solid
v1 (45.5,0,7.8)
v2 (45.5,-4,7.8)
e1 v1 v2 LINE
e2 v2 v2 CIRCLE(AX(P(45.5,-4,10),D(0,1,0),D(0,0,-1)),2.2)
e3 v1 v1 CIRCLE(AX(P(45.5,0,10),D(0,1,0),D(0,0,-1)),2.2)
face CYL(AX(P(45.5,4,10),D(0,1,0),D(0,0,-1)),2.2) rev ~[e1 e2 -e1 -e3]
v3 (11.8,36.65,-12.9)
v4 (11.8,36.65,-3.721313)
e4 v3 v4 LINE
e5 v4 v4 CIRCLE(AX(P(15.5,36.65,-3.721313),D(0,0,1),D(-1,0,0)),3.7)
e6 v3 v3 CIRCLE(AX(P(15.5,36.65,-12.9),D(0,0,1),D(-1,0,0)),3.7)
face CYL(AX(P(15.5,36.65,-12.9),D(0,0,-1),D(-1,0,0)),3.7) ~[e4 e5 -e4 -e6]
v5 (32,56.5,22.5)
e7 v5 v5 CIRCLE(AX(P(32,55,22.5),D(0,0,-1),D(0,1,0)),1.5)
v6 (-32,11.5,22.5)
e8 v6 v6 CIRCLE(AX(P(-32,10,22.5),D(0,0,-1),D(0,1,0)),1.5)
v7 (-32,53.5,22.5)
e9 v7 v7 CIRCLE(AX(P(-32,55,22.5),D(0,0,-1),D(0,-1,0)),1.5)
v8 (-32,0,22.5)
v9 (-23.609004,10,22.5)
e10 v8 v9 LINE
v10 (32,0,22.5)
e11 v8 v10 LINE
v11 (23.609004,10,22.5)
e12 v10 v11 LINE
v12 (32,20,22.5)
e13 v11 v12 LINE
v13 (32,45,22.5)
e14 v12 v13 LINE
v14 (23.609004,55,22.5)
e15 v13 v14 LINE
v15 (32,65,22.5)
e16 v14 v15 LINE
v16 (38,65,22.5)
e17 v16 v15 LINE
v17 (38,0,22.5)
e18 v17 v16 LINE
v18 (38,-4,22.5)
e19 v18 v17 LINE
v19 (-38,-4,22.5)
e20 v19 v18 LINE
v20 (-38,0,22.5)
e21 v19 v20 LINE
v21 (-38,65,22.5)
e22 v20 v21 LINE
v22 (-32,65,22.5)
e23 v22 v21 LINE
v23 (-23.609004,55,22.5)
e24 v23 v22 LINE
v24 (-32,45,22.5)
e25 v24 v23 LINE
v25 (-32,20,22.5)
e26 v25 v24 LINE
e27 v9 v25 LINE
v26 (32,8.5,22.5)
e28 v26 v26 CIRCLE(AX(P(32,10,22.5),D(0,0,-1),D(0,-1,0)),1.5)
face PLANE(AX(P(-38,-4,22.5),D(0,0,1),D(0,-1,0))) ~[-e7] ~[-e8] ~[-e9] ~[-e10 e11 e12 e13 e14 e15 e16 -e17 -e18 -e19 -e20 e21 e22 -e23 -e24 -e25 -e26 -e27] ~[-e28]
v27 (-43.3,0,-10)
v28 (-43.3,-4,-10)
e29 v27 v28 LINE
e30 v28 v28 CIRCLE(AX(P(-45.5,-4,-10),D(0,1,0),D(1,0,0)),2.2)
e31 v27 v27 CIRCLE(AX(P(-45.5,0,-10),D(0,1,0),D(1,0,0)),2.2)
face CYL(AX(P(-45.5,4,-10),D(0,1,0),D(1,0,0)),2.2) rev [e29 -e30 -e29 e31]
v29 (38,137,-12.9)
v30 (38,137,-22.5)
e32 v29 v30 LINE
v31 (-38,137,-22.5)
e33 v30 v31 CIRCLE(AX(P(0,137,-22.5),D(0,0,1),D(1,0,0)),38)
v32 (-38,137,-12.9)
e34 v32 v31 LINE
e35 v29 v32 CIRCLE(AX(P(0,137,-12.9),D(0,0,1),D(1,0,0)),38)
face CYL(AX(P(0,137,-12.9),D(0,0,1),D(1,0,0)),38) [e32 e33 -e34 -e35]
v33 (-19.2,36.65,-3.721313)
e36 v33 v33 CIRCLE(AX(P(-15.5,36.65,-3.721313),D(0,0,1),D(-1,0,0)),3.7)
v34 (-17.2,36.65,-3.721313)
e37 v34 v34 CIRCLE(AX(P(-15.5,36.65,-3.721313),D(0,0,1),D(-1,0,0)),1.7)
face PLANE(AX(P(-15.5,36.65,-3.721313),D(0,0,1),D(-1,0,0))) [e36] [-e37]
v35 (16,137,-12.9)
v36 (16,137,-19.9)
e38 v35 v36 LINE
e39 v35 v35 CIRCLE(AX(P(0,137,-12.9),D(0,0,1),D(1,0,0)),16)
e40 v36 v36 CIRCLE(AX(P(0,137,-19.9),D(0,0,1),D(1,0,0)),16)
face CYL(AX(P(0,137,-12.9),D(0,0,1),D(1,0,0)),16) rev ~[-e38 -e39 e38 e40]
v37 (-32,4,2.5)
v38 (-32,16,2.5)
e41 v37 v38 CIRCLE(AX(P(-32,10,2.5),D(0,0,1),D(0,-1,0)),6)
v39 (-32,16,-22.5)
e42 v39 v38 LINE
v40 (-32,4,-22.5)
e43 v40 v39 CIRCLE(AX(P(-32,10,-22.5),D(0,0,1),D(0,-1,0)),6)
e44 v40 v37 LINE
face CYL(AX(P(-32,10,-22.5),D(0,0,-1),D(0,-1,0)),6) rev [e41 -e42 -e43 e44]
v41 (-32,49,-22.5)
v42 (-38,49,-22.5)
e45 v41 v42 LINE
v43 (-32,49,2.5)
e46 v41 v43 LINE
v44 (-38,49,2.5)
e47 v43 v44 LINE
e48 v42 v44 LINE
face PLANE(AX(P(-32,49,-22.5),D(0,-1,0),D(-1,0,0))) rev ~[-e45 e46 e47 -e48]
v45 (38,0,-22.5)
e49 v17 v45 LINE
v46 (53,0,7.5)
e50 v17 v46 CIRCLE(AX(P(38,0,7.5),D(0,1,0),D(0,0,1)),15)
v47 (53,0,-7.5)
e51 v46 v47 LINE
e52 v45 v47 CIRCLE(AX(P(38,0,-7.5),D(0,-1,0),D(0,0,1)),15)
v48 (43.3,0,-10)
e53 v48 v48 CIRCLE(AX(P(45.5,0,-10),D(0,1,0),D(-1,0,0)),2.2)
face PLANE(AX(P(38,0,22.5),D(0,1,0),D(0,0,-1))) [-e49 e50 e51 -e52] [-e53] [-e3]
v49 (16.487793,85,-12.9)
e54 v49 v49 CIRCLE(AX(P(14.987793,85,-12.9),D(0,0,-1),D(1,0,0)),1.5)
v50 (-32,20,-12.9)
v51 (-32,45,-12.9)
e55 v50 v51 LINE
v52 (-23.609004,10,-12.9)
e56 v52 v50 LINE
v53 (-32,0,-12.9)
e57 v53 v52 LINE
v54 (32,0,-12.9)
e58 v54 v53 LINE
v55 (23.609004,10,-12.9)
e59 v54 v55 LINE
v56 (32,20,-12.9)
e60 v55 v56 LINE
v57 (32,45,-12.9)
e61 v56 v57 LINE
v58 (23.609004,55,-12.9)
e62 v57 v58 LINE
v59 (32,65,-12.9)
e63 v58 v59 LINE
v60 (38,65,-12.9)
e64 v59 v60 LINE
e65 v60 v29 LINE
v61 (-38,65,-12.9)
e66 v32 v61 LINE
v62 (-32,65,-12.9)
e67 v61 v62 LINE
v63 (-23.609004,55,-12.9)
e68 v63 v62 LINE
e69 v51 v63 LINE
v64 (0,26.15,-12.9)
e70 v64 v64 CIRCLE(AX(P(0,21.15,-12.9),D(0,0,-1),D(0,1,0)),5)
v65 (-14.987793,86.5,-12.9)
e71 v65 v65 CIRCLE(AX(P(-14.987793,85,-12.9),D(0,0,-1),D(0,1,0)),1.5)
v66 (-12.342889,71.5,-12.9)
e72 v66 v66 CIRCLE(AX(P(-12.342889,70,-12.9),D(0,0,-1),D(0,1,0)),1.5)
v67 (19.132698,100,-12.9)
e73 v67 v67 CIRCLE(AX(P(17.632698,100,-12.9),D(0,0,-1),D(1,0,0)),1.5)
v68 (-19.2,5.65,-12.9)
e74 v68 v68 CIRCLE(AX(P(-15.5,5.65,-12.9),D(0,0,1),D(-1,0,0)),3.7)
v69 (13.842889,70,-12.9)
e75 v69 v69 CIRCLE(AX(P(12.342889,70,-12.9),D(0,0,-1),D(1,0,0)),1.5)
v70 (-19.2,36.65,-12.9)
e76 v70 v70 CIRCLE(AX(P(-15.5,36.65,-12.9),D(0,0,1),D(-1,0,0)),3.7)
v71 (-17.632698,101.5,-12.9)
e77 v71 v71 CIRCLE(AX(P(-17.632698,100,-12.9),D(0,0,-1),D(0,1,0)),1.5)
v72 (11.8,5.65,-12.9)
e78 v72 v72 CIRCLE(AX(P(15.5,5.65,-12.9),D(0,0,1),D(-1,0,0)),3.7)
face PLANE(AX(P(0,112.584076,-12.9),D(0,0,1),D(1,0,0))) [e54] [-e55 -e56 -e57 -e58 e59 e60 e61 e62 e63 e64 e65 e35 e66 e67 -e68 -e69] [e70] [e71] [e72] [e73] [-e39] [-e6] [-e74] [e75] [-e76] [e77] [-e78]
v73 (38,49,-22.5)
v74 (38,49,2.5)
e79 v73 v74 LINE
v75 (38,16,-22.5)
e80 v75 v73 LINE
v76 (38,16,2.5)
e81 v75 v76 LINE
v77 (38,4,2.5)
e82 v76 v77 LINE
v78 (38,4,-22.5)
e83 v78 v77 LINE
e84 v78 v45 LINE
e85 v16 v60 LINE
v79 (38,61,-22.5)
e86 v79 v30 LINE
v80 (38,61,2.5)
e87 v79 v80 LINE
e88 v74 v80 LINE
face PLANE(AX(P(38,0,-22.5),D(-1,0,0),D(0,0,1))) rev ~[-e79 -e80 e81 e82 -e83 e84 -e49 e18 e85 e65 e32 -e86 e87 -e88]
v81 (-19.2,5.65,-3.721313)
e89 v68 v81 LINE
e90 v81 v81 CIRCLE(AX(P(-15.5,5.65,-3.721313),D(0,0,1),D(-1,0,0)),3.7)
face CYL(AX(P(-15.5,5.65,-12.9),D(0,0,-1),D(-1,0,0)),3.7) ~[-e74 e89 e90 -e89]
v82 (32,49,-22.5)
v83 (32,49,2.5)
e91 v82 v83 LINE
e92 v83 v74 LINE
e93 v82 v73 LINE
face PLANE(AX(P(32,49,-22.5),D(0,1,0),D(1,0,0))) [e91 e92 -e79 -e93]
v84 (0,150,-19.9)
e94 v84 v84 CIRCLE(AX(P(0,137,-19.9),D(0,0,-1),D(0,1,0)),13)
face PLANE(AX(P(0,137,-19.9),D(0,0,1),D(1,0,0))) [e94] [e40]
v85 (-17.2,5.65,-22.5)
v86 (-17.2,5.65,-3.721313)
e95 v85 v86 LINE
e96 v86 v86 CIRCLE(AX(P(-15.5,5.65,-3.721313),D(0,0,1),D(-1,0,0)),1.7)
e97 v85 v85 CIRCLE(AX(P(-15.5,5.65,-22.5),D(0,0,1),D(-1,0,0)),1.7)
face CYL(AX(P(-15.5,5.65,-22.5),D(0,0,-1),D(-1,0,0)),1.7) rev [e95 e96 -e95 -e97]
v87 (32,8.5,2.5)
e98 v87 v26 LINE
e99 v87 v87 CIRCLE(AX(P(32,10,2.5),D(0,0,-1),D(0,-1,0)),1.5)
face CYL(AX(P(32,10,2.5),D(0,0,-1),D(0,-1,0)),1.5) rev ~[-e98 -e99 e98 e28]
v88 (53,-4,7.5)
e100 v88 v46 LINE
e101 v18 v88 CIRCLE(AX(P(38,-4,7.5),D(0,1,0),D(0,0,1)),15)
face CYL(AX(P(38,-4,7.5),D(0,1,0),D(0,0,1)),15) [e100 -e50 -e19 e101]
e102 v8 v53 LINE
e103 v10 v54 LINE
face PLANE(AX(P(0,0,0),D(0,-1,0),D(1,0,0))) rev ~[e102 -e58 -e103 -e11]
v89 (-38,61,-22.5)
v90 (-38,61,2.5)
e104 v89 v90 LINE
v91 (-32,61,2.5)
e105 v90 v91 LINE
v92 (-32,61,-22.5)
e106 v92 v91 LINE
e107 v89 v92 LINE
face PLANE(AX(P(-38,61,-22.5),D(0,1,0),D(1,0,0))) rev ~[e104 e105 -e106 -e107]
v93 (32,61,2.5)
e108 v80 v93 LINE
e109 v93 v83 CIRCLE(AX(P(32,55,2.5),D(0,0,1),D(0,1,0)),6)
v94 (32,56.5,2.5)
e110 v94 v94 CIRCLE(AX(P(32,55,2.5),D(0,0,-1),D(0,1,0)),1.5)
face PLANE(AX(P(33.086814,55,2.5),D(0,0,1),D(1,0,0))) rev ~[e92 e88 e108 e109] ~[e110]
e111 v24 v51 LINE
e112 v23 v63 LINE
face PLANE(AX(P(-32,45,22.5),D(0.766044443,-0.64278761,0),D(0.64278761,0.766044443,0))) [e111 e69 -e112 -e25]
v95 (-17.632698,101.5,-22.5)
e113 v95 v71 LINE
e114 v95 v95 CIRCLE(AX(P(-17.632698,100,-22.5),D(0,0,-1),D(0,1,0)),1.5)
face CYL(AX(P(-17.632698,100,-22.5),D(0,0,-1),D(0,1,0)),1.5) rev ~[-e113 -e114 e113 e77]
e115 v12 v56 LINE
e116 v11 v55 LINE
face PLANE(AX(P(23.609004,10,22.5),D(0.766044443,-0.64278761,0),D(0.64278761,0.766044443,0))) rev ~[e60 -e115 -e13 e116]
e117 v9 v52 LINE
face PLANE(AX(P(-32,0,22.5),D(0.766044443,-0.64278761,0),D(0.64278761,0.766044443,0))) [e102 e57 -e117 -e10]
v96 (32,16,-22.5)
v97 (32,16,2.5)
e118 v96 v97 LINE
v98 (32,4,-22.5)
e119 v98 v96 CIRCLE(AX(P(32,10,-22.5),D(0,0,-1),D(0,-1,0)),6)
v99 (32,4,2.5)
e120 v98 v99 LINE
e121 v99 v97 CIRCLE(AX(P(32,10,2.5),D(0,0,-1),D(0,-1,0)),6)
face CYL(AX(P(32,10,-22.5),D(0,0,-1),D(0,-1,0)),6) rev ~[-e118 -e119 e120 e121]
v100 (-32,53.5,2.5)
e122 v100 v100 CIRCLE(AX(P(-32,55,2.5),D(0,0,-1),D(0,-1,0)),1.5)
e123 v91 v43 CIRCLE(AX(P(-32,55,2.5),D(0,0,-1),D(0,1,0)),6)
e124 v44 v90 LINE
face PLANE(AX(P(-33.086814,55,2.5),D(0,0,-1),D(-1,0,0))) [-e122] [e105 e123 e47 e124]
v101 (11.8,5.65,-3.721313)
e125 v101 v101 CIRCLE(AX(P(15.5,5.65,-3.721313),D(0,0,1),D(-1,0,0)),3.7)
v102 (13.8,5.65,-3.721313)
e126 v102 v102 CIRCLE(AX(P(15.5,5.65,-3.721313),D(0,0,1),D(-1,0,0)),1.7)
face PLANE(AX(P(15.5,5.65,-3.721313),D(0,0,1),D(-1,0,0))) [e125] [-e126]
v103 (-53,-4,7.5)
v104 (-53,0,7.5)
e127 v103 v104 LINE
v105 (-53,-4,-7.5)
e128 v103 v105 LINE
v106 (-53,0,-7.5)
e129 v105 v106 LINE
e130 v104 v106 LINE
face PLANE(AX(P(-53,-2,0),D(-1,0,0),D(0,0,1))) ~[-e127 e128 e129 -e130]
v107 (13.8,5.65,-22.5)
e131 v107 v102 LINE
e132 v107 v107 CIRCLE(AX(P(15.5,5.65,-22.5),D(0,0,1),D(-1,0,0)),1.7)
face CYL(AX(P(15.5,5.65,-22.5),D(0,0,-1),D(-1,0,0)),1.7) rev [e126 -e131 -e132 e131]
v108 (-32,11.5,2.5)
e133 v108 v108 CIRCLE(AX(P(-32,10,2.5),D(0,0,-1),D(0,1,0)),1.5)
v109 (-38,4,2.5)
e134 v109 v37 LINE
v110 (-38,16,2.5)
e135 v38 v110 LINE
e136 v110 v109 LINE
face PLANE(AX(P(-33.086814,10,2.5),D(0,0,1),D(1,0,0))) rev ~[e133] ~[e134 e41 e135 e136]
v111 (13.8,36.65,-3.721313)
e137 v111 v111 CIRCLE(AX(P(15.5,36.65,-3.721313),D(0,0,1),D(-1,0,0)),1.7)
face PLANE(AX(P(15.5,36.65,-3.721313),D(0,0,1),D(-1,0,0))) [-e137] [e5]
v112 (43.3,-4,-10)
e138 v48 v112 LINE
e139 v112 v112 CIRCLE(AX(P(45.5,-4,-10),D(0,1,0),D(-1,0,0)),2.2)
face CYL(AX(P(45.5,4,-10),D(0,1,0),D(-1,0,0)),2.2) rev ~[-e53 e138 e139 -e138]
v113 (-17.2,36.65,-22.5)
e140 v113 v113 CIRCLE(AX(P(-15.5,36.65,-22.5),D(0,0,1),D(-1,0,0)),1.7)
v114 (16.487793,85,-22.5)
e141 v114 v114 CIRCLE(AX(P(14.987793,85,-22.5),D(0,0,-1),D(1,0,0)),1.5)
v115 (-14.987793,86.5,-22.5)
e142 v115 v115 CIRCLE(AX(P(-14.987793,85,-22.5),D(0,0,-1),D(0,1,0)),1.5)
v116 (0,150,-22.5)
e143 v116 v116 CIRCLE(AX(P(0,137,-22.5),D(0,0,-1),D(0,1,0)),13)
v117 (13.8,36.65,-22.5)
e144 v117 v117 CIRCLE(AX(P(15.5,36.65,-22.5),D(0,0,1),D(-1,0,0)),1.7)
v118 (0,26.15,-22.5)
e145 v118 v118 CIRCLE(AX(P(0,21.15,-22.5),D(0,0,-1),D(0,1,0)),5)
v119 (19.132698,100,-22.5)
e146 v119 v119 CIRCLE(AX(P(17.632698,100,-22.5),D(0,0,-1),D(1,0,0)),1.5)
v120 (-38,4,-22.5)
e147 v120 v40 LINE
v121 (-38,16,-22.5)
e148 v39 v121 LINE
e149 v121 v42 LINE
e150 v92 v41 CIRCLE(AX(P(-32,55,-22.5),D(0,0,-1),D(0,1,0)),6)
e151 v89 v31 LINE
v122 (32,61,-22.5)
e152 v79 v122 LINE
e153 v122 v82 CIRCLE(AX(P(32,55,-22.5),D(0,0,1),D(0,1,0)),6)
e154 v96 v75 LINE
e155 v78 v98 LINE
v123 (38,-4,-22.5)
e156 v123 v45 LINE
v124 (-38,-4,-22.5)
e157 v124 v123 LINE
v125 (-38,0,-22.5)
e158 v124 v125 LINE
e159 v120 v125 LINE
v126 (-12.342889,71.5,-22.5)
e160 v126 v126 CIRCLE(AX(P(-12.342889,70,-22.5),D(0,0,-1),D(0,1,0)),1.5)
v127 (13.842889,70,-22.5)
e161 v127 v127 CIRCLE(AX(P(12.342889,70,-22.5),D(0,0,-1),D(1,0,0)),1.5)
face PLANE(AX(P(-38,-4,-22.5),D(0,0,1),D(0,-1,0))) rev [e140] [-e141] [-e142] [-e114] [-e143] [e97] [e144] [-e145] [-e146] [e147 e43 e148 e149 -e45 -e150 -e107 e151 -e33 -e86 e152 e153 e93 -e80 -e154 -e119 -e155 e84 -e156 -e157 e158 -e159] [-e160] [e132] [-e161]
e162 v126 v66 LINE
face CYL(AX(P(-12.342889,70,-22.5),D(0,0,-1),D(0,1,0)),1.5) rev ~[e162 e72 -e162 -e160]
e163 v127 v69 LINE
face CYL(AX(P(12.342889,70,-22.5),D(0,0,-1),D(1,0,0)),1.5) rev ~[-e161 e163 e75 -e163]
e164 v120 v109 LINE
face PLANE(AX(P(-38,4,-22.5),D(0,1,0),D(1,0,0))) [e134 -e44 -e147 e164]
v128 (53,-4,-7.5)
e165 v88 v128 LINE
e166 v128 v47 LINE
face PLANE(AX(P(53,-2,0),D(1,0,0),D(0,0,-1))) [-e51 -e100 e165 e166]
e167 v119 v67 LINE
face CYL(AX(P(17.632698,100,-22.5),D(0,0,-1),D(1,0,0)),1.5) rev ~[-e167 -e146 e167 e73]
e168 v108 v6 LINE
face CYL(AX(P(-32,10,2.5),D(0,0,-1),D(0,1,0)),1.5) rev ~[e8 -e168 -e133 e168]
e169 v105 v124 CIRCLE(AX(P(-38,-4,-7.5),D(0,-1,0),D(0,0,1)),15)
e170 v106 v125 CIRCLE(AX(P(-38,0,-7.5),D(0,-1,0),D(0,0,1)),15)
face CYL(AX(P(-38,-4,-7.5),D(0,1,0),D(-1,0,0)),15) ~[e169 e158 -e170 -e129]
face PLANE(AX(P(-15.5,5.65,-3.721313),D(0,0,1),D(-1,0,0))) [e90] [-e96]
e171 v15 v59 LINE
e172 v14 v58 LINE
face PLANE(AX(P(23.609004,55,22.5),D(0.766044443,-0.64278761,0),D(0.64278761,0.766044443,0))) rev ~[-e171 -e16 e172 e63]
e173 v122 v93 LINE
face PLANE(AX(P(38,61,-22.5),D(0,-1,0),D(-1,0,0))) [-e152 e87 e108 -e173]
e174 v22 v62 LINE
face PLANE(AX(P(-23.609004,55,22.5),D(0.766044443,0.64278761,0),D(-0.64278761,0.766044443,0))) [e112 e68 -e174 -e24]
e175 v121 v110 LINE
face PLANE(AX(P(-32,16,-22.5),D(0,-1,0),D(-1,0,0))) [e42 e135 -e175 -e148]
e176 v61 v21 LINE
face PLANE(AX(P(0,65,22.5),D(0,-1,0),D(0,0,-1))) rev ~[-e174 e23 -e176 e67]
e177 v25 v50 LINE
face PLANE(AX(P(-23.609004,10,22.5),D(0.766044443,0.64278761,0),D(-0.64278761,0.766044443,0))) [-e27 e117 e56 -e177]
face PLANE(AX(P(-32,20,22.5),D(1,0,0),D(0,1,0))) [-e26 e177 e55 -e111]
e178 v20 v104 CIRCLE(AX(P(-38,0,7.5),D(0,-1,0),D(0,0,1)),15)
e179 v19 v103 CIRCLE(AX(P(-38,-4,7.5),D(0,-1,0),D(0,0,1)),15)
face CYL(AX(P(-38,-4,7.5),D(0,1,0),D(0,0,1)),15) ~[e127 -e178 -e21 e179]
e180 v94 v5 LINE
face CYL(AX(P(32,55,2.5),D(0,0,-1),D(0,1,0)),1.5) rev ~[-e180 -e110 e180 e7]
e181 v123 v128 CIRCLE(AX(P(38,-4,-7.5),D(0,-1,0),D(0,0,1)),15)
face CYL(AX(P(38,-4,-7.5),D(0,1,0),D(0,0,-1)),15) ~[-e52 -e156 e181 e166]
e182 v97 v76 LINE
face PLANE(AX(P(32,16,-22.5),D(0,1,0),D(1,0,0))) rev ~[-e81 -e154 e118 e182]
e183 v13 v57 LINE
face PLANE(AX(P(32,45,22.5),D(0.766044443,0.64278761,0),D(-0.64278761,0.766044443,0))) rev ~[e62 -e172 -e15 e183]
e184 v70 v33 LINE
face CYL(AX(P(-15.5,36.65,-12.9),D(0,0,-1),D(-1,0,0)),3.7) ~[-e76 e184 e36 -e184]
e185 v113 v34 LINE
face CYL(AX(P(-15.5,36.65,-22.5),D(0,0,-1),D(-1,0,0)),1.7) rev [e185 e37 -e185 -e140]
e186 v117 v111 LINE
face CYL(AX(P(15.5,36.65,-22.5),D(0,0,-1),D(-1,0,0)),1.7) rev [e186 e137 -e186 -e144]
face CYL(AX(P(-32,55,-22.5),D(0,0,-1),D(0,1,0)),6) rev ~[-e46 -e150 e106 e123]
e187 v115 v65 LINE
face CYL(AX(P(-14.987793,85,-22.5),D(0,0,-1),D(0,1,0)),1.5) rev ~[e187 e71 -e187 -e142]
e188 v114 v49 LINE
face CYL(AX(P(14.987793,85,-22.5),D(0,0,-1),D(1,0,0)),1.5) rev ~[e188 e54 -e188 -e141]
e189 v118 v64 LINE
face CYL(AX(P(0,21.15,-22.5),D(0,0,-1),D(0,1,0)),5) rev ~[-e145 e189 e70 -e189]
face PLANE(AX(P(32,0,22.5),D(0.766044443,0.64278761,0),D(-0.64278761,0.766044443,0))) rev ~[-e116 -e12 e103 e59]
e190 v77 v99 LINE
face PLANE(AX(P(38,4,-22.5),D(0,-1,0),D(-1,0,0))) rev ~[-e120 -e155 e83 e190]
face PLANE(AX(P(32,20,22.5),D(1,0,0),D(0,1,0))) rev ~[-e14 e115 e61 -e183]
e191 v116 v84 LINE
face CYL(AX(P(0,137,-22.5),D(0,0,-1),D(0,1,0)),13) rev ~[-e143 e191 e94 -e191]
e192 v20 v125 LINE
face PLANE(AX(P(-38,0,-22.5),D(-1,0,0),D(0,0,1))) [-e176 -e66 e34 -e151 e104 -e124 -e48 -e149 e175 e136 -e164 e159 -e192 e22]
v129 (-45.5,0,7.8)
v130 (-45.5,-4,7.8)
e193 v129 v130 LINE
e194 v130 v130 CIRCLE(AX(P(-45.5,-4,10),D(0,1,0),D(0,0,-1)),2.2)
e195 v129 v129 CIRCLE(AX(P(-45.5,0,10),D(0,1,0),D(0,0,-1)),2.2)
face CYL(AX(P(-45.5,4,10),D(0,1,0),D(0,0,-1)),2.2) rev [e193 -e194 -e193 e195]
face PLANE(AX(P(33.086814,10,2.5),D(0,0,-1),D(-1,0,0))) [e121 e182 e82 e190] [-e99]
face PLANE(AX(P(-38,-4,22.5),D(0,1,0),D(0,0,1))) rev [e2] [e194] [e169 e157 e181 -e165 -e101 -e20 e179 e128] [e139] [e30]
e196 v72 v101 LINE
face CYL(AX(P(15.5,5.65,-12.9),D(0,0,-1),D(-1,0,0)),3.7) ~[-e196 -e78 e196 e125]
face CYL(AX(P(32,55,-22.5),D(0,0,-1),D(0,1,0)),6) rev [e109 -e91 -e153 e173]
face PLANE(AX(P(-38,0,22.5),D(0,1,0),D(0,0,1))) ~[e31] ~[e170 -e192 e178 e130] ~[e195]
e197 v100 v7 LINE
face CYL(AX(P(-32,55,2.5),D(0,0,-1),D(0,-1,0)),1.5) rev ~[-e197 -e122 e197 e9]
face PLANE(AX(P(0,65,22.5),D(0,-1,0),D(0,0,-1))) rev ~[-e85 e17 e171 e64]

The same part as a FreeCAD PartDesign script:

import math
import FreeCAD as App
import Part
import Sketcher
from FreeCAD import Vector
Q = App.Units.Quantity


def edges_at(feature, points):
    """Names of the edges that pass closest to the given points."""
    edges = feature.Shape.Edges
    near = lambda p: min(range(len(edges)), key=lambda i: edges[i].distToShape(Part.Vertex(*p))[0])
    return sorted({f"Edge{near(p) + 1}" for p in points})


def add_polygon(sketch, points):
    """Adds a closed chain of lines whose ends are joined by coincident constraints."""
    first, n = sketch.GeometryCount, len(points)
    for a, b in zip(points, points[1:] + points[:1]):
        sketch.addGeometry(Part.LineSegment(App.Vector(*a, 0), App.Vector(*b, 0)), False)
    for i in range(n):
        sketch.addConstraint(Sketcher.Constraint("Coincident", first + i, 2, first + (i + 1) % n, 1))

doc = App.newDocument("Part")
params = doc.addObject("Spreadsheet::Sheet", "Params")
for row, (alias, value) in enumerate([
    ("sketch1_width", "65 mm"),
    ("sketch1_height", "45 mm"),
    ("pad1_length", "76 mm"),
    ("sketch2_width", "6 mm"),
    ("sketch2_height", "65 mm"),
    ("sketch2_height2", "25 mm"),
    ("pocket1_length", "35.4 mm"),
    ("sketch3_radius", "6 mm"),
    ("sketch3_width", "6 mm"),
    ("pocket2_length", "25 mm"),
    ("sketch4_diameter", "3 mm"),
    ("sketch5_radius", "38 mm"),
    ("sketch5_height", "72 mm"),
    ("pad2_length", "9.6 mm"),
    ("sketch6_diameter", "32 mm"),
    ("pocket4_length", "7 mm"),
    ("sketch7_diameter", "26 mm"),
    ("sketch8_diameter", "3 mm"),
    ("sketch9_width", "76 mm"),
    ("sketch9_height", "45 mm"),
    ("pad3_length", "4 mm"),
    ("sketch10_width", "4 mm"),
    ("sketch10_height", "45 mm"),
    ("pad4_length", "15 mm"),
    ("fillet_radius", "15 mm"),
    ("sketch11_diameter", "4.4 mm"),
    ("fillet2_radius", "15 mm"),
    ("sketch12_diameter", "7.4 mm"),
    ("sketch12_diameter2", "3.4 mm"),
    ("pad5_length", "9.178687 mm"),
    ("sketch13_diameter", "3.4 mm"),
    ("pocket8_length", "9.6 mm"),
    ("sketch14_diameter", "10 mm"),
    ("pocket9_length", "9.6 mm"),
], start=1):
    params.set(f"A{row}", alias)
    params.set(f"B{row}", "=" + value)
    params.setAlias(f"B{row}", alias)

body = doc.addObject("PartDesign::Body", "Body")

sketch1 = doc.addObject("Sketcher::SketchObject", "Sketch")
body.addObject(sketch1)
sketch1.AttachmentSupport = (doc.YZ_Plane, [""])
sketch1.MapMode = "FlatFace"
add_polygon(sketch1, [(65, 22), (0, 22), (0, -22), (65, -22)])
sketch1.addConstraint(Sketcher.Constraint("Horizontal", 0))
sketch1.addConstraint(Sketcher.Constraint("Vertical", 1))
sketch1.addConstraint(Sketcher.Constraint("Horizontal", 2))
sketch1.addConstraint(Sketcher.Constraint("Vertical", 3))
sketch1.addConstraint(Sketcher.Constraint("Symmetric", 0, 2, 1, 2, -1, 1))
sketch1.addConstraint(Sketcher.Constraint("DistanceX", 0, 2, 0, 1, Q("65 mm")))
sketch1.addConstraint(Sketcher.Constraint("DistanceY", 1, 2, 1, 1, Q("45 mm")))
sketch1.setExpression("Constraints[9]", "Params.sketch1_width")
sketch1.setExpression("Constraints[10]", "Params.sketch1_height")
pad1 = doc.addObject("PartDesign::Pad", "Pad")
body.addObject(pad1)
pad1.Profile = sketch1
pad1.setExpression("Length", "Params.pad1_length")
pad1.Midplane = True

sketch2 = doc.addObject("Sketcher::SketchObject", "Sketch001")
body.addObject(sketch2)
sketch2.AttachmentSupport = (doc.XY_Plane, [""])
sketch2.MapMode = "FlatFace"
sketch2.AttachmentOffset = App.Placement(Vector(0, 0, 22.5), App.Rotation())
add_polygon(sketch2, [(-50, 77), (-50, -12), (50, -12), (50, 77)])
add_polygon(sketch2, [(-32, 0), (-38, 0), (-38, 65), (-32, 65), (-24, 55), (-32, 45), (-32, 20), (-24, 10)])
add_polygon(sketch2, [(32, 65), (38, 65), (38, 0), (32, 0), (24, 10), (32, 20), (32, 45), (24, 55)])
sketch2.addConstraint(Sketcher.Constraint("Vertical", 0))
sketch2.addConstraint(Sketcher.Constraint("Horizontal", 1))
sketch2.addConstraint(Sketcher.Constraint("Vertical", 2))
sketch2.addConstraint(Sketcher.Constraint("Horizontal", 3))
sketch2.addConstraint(Sketcher.Constraint("Horizontal", 4))
sketch2.addConstraint(Sketcher.Constraint("Vertical", 5))
sketch2.addConstraint(Sketcher.Constraint("Horizontal", 6))
sketch2.addConstraint(Sketcher.Constraint("Vertical", 9))
sketch2.addConstraint(Sketcher.Constraint("Horizontal", 12))
sketch2.addConstraint(Sketcher.Constraint("Vertical", 13))
sketch2.addConstraint(Sketcher.Constraint("Horizontal", 14))
sketch2.addConstraint(Sketcher.Constraint("Vertical", 17))
sketch2.addConstraint(Sketcher.Constraint("Symmetric", 4, 2, 13, 2, -1, 1))
sketch2.addConstraint(Sketcher.Constraint("Symmetric", 11, 2, 14, 2, -2))
sketch2.addConstraint(Sketcher.Constraint("Symmetric", 10, 2, 15, 2, -2))
sketch2.addConstraint(Sketcher.Constraint("Symmetric", 9, 2, 16, 2, -2))
sketch2.addConstraint(Sketcher.Constraint("Symmetric", 7, 2, 18, 2, -2))
sketch2.addConstraint(Sketcher.Constraint("Symmetric", 6, 2, 19, 2, -2))
sketch2.addConstraint(Sketcher.Constraint("Parallel", 7, 10))
sketch2.addConstraint(Sketcher.Constraint("Parallel", 8, 11))
sketch2.addConstraint(Sketcher.Constraint("Parallel", 10, 15))
sketch2.addConstraint(Sketcher.Constraint("Parallel", 15, 18))
sketch2.addConstraint(Sketcher.Constraint("Vertical", 6, 2, 8, 2))
sketch2.addConstraint(Sketcher.Constraint("Vertical", 7, 2, 10, 2))
sketch2.addConstraint(Sketcher.Constraint("Vertical", 9, 2, 11, 2))
sketch2.addConstraint(Sketcher.Constraint("DistanceX", 4, 2, 4, 1, Q("6 mm")))
sketch2.addConstraint(Sketcher.Constraint("DistanceY", 5, 1, 5, 2, Q("65 mm")))
sketch2.addConstraint(Sketcher.Constraint("DistanceY", 9, 2, 9, 1, Q("25 mm")))
sketch2.addConstraint(Sketcher.Constraint("Angle", 7, Q("-50 deg")))
sketch2.addConstraint(Sketcher.Constraint("DistanceX", 4, 2, -1, 1, Q("38 mm")))
sketch2.addConstraint(Sketcher.Constraint("DistanceX", 1, 1, 1, 2, Q("99.932 mm")))
sketch2.addConstraint(Sketcher.Constraint("DistanceY", 0, 2, 0, 1, Q("88.932 mm")))
sketch2.addConstraint(Sketcher.Constraint("DistanceX", 0, 2, -1, 1, Q("49.966 mm")))
sketch2.addConstraint(Sketcher.Constraint("DistanceY", 0, 2, -1, 1, Q("11.966 mm")))
sketch2.setExpression("Constraints[45]", "Params.sketch2_width")
sketch2.setExpression("Constraints[46]", "Params.sketch2_height")
sketch2.setExpression("Constraints[47]", "Params.sketch2_height2")
pocket1 = doc.addObject("PartDesign::Pocket", "Pocket")
body.addObject(pocket1)
pocket1.Profile = sketch2
pocket1.setExpression("Length", "Params.pocket1_length")

sketch3 = doc.addObject("Sketcher::SketchObject", "Sketch002")
body.addObject(sketch3)
sketch3.AttachmentSupport = (doc.XY_Plane, [""])
sketch3.MapMode = "FlatFace"
sketch3.AttachmentOffset = App.Placement(Vector(0, 0, -22.5), App.Rotation())
sketch3.addGeometry(Part.LineSegment(Vector(32, 16, 0), Vector(38, 16, 0)), False)
sketch3.addGeometry(Part.LineSegment(Vector(38, 16, 0), Vector(38, 4, 0)), False)
sketch3.addGeometry(Part.LineSegment(Vector(38, 4, 0), Vector(32, 4, 0)), False)
sketch3.addGeometry(Part.ArcOfCircle(Part.Circle(Vector(32, 10, 0), Vector(0, 0, 1), 6), math.radians(90), math.radians(270)), False)
sketch3.addGeometry(Part.LineSegment(Vector(-38, 4, 0), Vector(-38, 16, 0)), False)
sketch3.addGeometry(Part.LineSegment(Vector(-38, 16, 0), Vector(-32, 16, 0)), False)
sketch3.addGeometry(Part.ArcOfCircle(Part.Circle(Vector(-32, 10, 0), Vector(0, 0, 1), 6), math.radians(-90), math.radians(90)), False)
sketch3.addGeometry(Part.LineSegment(Vector(-32, 4, 0), Vector(-38, 4, 0)), False)
sketch3.addGeometry(Part.LineSegment(Vector(-32, 49, 0), Vector(-38, 49, 0)), False)
sketch3.addGeometry(Part.LineSegment(Vector(-38, 49, 0), Vector(-38, 61, 0)), False)
sketch3.addGeometry(Part.LineSegment(Vector(-38, 61, 0), Vector(-32, 61, 0)), False)
sketch3.addGeometry(Part.ArcOfCircle(Part.Circle(Vector(-32, 55, 0), Vector(0, 0, 1), 6), math.radians(-90), math.radians(90)), False)
sketch3.addGeometry(Part.LineSegment(Vector(38, 61, 0), Vector(38, 49, 0)), False)
sketch3.addGeometry(Part.LineSegment(Vector(38, 49, 0), Vector(32, 49, 0)), False)
sketch3.addGeometry(Part.ArcOfCircle(Part.Circle(Vector(32, 55, 0), Vector(0, 0, 1), 6), math.radians(90), math.radians(270)), False)
sketch3.addGeometry(Part.LineSegment(Vector(32, 61, 0), Vector(38, 61, 0)), False)
sketch3.addConstraint(Sketcher.Constraint("Coincident", 0, 2, 1, 1))
sketch3.addConstraint(Sketcher.Constraint("Coincident", 1, 2, 2, 1))
sketch3.addConstraint(Sketcher.Constraint("Tangent", 2, 2, 3, 2))
sketch3.addConstraint(Sketcher.Constraint("Tangent", 3, 1, 0, 1))
sketch3.addConstraint(Sketcher.Constraint("Coincident", 4, 2, 5, 1))
sketch3.addConstraint(Sketcher.Constraint("Tangent", 5, 2, 6, 2))
sketch3.addConstraint(Sketcher.Constraint("Tangent", 6, 1, 7, 1))
sketch3.addConstraint(Sketcher.Constraint("Coincident", 7, 2, 4, 1))
sketch3.addConstraint(Sketcher.Constraint("Coincident", 8, 2, 9, 1))
sketch3.addConstraint(Sketcher.Constraint("Coincident", 9, 2, 10, 1))
sketch3.addConstraint(Sketcher.Constraint("Tangent", 10, 2, 11, 2))
sketch3.addConstraint(Sketcher.Constraint("Tangent", 11, 1, 8, 1))
sketch3.addConstraint(Sketcher.Constraint("Coincident", 12, 2, 13, 1))
sketch3.addConstraint(Sketcher.Constraint("Tangent", 13, 2, 14, 2))
sketch3.addConstraint(Sketcher.Constraint("Tangent", 14, 1, 15, 1))
sketch3.addConstraint(Sketcher.Constraint("Coincident", 15, 2, 12, 1))
sketch3.addConstraint(Sketcher.Constraint("Horizontal", 0))
sketch3.addConstraint(Sketcher.Constraint("Vertical", 1))
sketch3.addConstraint(Sketcher.Constraint("Horizontal", 2))
sketch3.addConstraint(Sketcher.Constraint("Vertical", 4))
sketch3.addConstraint(Sketcher.Constraint("Horizontal", 5))
sketch3.addConstraint(Sketcher.Constraint("Horizontal", 7))
sketch3.addConstraint(Sketcher.Constraint("Horizontal", 8))
sketch3.addConstraint(Sketcher.Constraint("Vertical", 9))
sketch3.addConstraint(Sketcher.Constraint("Horizontal", 10))
sketch3.addConstraint(Sketcher.Constraint("Vertical", 12))
sketch3.addConstraint(Sketcher.Constraint("Horizontal", 13))
sketch3.addConstraint(Sketcher.Constraint("Horizontal", 15))
sketch3.addConstraint(Sketcher.Constraint("Equal", 3, 6))
sketch3.addConstraint(Sketcher.Constraint("Equal", 6, 11))
sketch3.addConstraint(Sketcher.Constraint("Equal", 11, 14))
sketch3.addConstraint(Sketcher.Constraint("Symmetric", 3, 3, 6, 3, -2))
sketch3.addConstraint(Sketcher.Constraint("Symmetric", 11, 3, 14, 3, -2))
sketch3.addConstraint(Sketcher.Constraint("Vertical", 6, 3, 11, 3))
sketch3.addConstraint(Sketcher.Constraint("Vertical", 7, 2, 8, 2))
sketch3.addConstraint(Sketcher.Constraint("Vertical", 1, 2, 12, 2))
sketch3.addConstraint(Sketcher.Constraint("Equal", 2, 5))
sketch3.addConstraint(Sketcher.Constraint("Radius", 3, Q("6 mm")))
sketch3.addConstraint(Sketcher.Constraint("DistanceX", 0, 1, 0, 2, Q("6 mm")))
sketch3.addConstraint(Sketcher.Constraint("DistanceX", -1, 1, 3, 3, Q("32 mm")))
sketch3.addConstraint(Sketcher.Constraint("DistanceY", -1, 1, 3, 3, Q("10 mm")))
sketch3.addConstraint(Sketcher.Constraint("DistanceY", -1, 1, 11, 3, Q("55 mm")))
sketch3.setExpression("Constraints[37]", "Params.sketch3_radius")
sketch3.setExpression("Constraints[38]", "Params.sketch3_width")
pocket2 = doc.addObject("PartDesign::Pocket", "Pocket001")
body.addObject(pocket2)
pocket2.Profile = sketch3
pocket2.setExpression("Length", "Params.pocket2_length")
pocket2.Reversed = True

sketch4 = doc.addObject("Sketcher::SketchObject", "Sketch003")
body.addObject(sketch4)
sketch4.AttachmentSupport = (doc.XY_Plane, [""])
sketch4.MapMode = "FlatFace"
sketch4.AttachmentOffset = App.Placement(Vector(0, 0, 2.5), App.Rotation())
sketch4.addGeometry(Part.Circle(Vector(-32, 10, 0), Vector(0, 0, 1), 1.5), False)
sketch4.addGeometry(Part.Circle(Vector(32, 10, 0), Vector(0, 0, 1), 1.5), False)
sketch4.addGeometry(Part.Circle(Vector(32, 55, 0), Vector(0, 0, 1), 1.5), False)
sketch4.addGeometry(Part.Circle(Vector(-32, 55, 0), Vector(0, 0, 1), 1.5), False)
sketch4.addConstraint(Sketcher.Constraint("Equal", 0, 1))
sketch4.addConstraint(Sketcher.Constraint("Equal", 1, 2))
sketch4.addConstraint(Sketcher.Constraint("Equal", 2, 3))
sketch4.addConstraint(Sketcher.Constraint("Symmetric", 0, 3, 1, 3, -2))
sketch4.addConstraint(Sketcher.Constraint("Symmetric", 2, 3, 3, 3, -2))
sketch4.addConstraint(Sketcher.Constraint("Vertical", 1, 3, 2, 3))
sketch4.addConstraint(Sketcher.Constraint("Diameter", 0, Q("3 mm")))
sketch4.addConstraint(Sketcher.Constraint("DistanceX", 0, 3, -1, 1, Q("32 mm")))
sketch4.addConstraint(Sketcher.Constraint("DistanceY", -1, 1, 0, 3, Q("10 mm")))
sketch4.addConstraint(Sketcher.Constraint("DistanceY", -1, 1, 2, 3, Q("55 mm")))
sketch4.setExpression("Constraints[6]", "Params.sketch4_diameter")
pocket3 = doc.addObject("PartDesign::Pocket", "Pocket002")
body.addObject(pocket3)
pocket3.Profile = sketch4
pocket3.Type = "ThroughAll"
pocket3.Reversed = True

sketch5 = doc.addObject("Sketcher::SketchObject", "Sketch004")
body.addObject(sketch5)
sketch5.AttachmentSupport = (doc.XY_Plane, [""])
sketch5.MapMode = "FlatFace"
sketch5.AttachmentOffset = App.Placement(Vector(0, 0, -12.9), App.Rotation())
sketch5.addGeometry(Part.LineSegment(Vector(-38, 65, 0), Vector(38, 65, 0)), False)
sketch5.addGeometry(Part.LineSegment(Vector(38, 65, 0), Vector(38, 137, 0)), False)
sketch5.addGeometry(Part.ArcOfCircle(Part.Circle(Vector(0, 137, 0), Vector(0, 0, 1), 38), math.radians(0), math.radians(180)), False)
sketch5.addGeometry(Part.LineSegment(Vector(-38, 137, 0), Vector(-38, 65, 0)), False)
sketch5.addConstraint(Sketcher.Constraint("Coincident", 0, 2, 1, 1))
sketch5.addConstraint(Sketcher.Constraint("Tangent", 1, 2, 2, 1))
sketch5.addConstraint(Sketcher.Constraint("Tangent", 2, 2, 3, 1))
sketch5.addConstraint(Sketcher.Constraint("Coincident", 3, 2, 0, 1))
sketch5.addConstraint(Sketcher.Constraint("Horizontal", 0))
sketch5.addConstraint(Sketcher.Constraint("Vertical", 1))
sketch5.addConstraint(Sketcher.Constraint("Vertical", 3))
sketch5.addConstraint(Sketcher.Constraint("PointOnObject", 2, 3, -2))
sketch5.addConstraint(Sketcher.Constraint("Radius", 2, Q("38 mm")))
sketch5.addConstraint(Sketcher.Constraint("DistanceY", 1, 1, 1, 2, Q("72 mm")))
sketch5.addConstraint(Sketcher.Constraint("DistanceY", -1, 1, 2, 3, Q("137 mm")))
sketch5.setExpression("Constraints[8]", "Params.sketch5_radius")
sketch5.setExpression("Constraints[9]", "Params.sketch5_height")
pad2 = doc.addObject("PartDesign::Pad", "Pad001")
body.addObject(pad2)
pad2.Profile = sketch5
pad2.setExpression("Length", "Params.pad2_length")
pad2.Reversed = True

sketch6 = doc.addObject("Sketcher::SketchObject", "Sketch005")
body.addObject(sketch6)
sketch6.AttachmentSupport = (doc.XY_Plane, [""])
sketch6.MapMode = "FlatFace"
sketch6.AttachmentOffset = App.Placement(Vector(0, 0, -12.9), App.Rotation())
sketch6.addGeometry(Part.Circle(Vector(0, 137, 0), Vector(0, 0, 1), 16), False)
sketch6.addConstraint(Sketcher.Constraint("PointOnObject", 0, 3, -2))
sketch6.addConstraint(Sketcher.Constraint("Diameter", 0, Q("32 mm")))
sketch6.addConstraint(Sketcher.Constraint("DistanceY", -1, 1, 0, 3, Q("137 mm")))
sketch6.setExpression("Constraints[1]", "Params.sketch6_diameter")
pocket4 = doc.addObject("PartDesign::Pocket", "Pocket003")
body.addObject(pocket4)
pocket4.Profile = sketch6
pocket4.setExpression("Length", "Params.pocket4_length")

sketch7 = doc.addObject("Sketcher::SketchObject", "Sketch006")
body.addObject(sketch7)
sketch7.AttachmentSupport = (doc.XY_Plane, [""])
sketch7.MapMode = "FlatFace"
sketch7.AttachmentOffset = App.Placement(Vector(0, 0, -22.5), App.Rotation())
sketch7.addGeometry(Part.Circle(Vector(0, 137, 0), Vector(0, 0, 1), 13), False)
sketch7.addConstraint(Sketcher.Constraint("PointOnObject", 0, 3, -2))
sketch7.addConstraint(Sketcher.Constraint("Diameter", 0, Q("26 mm")))
sketch7.addConstraint(Sketcher.Constraint("DistanceY", -1, 1, 0, 3, Q("137 mm")))
sketch7.setExpression("Constraints[1]", "Params.sketch7_diameter")
pocket5 = doc.addObject("PartDesign::Pocket", "Pocket004")
body.addObject(pocket5)
pocket5.Profile = sketch7
pocket5.Type = "ThroughAll"
pocket5.Reversed = True

sketch8 = doc.addObject("Sketcher::SketchObject", "Sketch007")
body.addObject(sketch8)
sketch8.AttachmentSupport = (doc.XY_Plane, [""])
sketch8.MapMode = "FlatFace"
sketch8.AttachmentOffset = App.Placement(Vector(0, 0, -22.5), App.Rotation())
sketch8.addGeometry(Part.Circle(Vector(-12.3, 70, 0), Vector(0, 0, 1), 1.5), False)
sketch8.addGeometry(Part.Circle(Vector(-15, 85, 0), Vector(0, 0, 1), 1.5), False)
sketch8.addGeometry(Part.Circle(Vector(-17.6, 100, 0), Vector(0, 0, 1), 1.5), False)
sketch8.addGeometry(Part.Circle(Vector(12.3, 70, 0), Vector(0, 0, 1), 1.5), False)
sketch8.addGeometry(Part.Circle(Vector(17.6, 100, 0), Vector(0, 0, 1), 1.5), False)
sketch8.addGeometry(Part.Circle(Vector(15, 85, 0), Vector(0, 0, 1), 1.5), False)
sketch8.addConstraint(Sketcher.Constraint("Equal", 0, 1))
sketch8.addConstraint(Sketcher.Constraint("Equal", 1, 2))
sketch8.addConstraint(Sketcher.Constraint("Equal", 2, 3))
sketch8.addConstraint(Sketcher.Constraint("Equal", 3, 4))
sketch8.addConstraint(Sketcher.Constraint("Equal", 4, 5))
sketch8.addConstraint(Sketcher.Constraint("Symmetric", 0, 3, 3, 3, -2))
sketch8.addConstraint(Sketcher.Constraint("Symmetric", 2, 3, 4, 3, -2))
sketch8.addConstraint(Sketcher.Constraint("Symmetric", 1, 3, 5, 3, -2))
sketch8.addConstraint(Sketcher.Constraint("Diameter", 0, Q("3 mm")))
sketch8.addConstraint(Sketcher.Constraint("DistanceY", -1, 1, 0, 3, Q("70 mm")))
sketch8.addConstraint(Sketcher.Constraint("DistanceY", -1, 1, 1, 3, Q("85 mm")))
sketch8.addConstraint(Sketcher.Constraint("DistanceY", -1, 1, 2, 3, Q("100 mm")))
sketch8.addConstraint(Sketcher.Constraint("DistanceX", 2, 3, -1, 1, Q("17.632698 mm")))
sketch8.addConstraint(Sketcher.Constraint("DistanceX", 0, 3, -1, 1, Q("12.342889 mm")))
sketch8.addConstraint(Sketcher.Constraint("DistanceX", 1, 3, 4, 3, Q("32.620491 mm")))
sketch8.setExpression("Constraints[8]", "Params.sketch8_diameter")
pocket6 = doc.addObject("PartDesign::Pocket", "Pocket005")
body.addObject(pocket6)
pocket6.Profile = sketch8
pocket6.Type = "ThroughAll"
pocket6.Reversed = True

sketch9 = doc.addObject("Sketcher::SketchObject", "Sketch008")
body.addObject(sketch9)
sketch9.AttachmentSupport = (doc.XZ_Plane, [""])
sketch9.MapMode = "FlatFace"
add_polygon(sketch9, [(-38, 22), (-38, -22), (38, -22), (38, 22)])
sketch9.addConstraint(Sketcher.Constraint("Vertical", 0))
sketch9.addConstraint(Sketcher.Constraint("Horizontal", 1))
sketch9.addConstraint(Sketcher.Constraint("Vertical", 2))
sketch9.addConstraint(Sketcher.Constraint("Horizontal", 3))
sketch9.addConstraint(Sketcher.Constraint("Symmetric", 0, 2, 2, 2, -1, 1))
sketch9.addConstraint(Sketcher.Constraint("DistanceX", 1, 1, 1, 2, Q("76 mm")))
sketch9.addConstraint(Sketcher.Constraint("DistanceY", 0, 2, 0, 1, Q("45 mm")))
sketch9.setExpression("Constraints[9]", "Params.sketch9_width")
sketch9.setExpression("Constraints[10]", "Params.sketch9_height")
pad3 = doc.addObject("PartDesign::Pad", "Pad002")
body.addObject(pad3)
pad3.Profile = sketch9
pad3.setExpression("Length", "Params.pad3_length")

sketch10 = doc.addObject("Sketcher::SketchObject", "Sketch009")
body.addObject(sketch10)
sketch10.AttachmentSupport = (doc.YZ_Plane, [""])
sketch10.MapMode = "FlatFace"
sketch10.AttachmentOffset = App.Placement(Vector(0, 0, 38), App.Rotation())
add_polygon(sketch10, [(0, 22.5), (-4, 22.5), (-4, -22.5), (0, -22.5)])
sketch10.addConstraint(Sketcher.Constraint("Horizontal", 0))
sketch10.addConstraint(Sketcher.Constraint("Vertical", 1))
sketch10.addConstraint(Sketcher.Constraint("Horizontal", 2))
sketch10.addConstraint(Sketcher.Constraint("Vertical", 3))
sketch10.addConstraint(Sketcher.Constraint("Symmetric", 2, 2, 3, 2, -1, 1))
sketch10.addConstraint(Sketcher.Constraint("DistanceX", 0, 2, 0, 1, Q("4 mm")))
sketch10.addConstraint(Sketcher.Constraint("DistanceY", 1, 2, 1, 1, Q("45 mm")))
sketch10.setExpression("Constraints[9]", "Params.sketch10_width")
sketch10.setExpression("Constraints[10]", "Params.sketch10_height")
pad4 = doc.addObject("PartDesign::Pad", "Pad003")
body.addObject(pad4)
pad4.Profile = sketch10
pad4.setExpression("Length", "Params.pad4_length")
doc.recompute()

fillet = doc.addObject("PartDesign::Fillet", "Fillet")
body.addObject(fillet)
fillet.Base = (pad4, edges_at(pad4, [(53, -2, 22.5), (53, -2, -22.5)]))
fillet.setExpression("Radius", "Params.fillet_radius")

sketch11 = doc.addObject("Sketcher::SketchObject", "Sketch010")
body.addObject(sketch11)
sketch11.AttachmentSupport = (doc.XZ_Plane, [""])
sketch11.MapMode = "FlatFace"
sketch11.AttachmentOffset = App.Placement(Vector(0, 0, -4), App.Rotation())
sketch11.addGeometry(Part.Circle(Vector(45.5, -10, 0), Vector(0, 0, 1), 2.2), False)
sketch11.addGeometry(Part.Circle(Vector(45.5, 10, 0), Vector(0, 0, 1), 2.2), False)
sketch11.addConstraint(Sketcher.Constraint("Equal", 0, 1))
sketch11.addConstraint(Sketcher.Constraint("Symmetric", 0, 3, 1, 3, -1))
sketch11.addConstraint(Sketcher.Constraint("Diameter", 0, Q("4.4 mm")))
sketch11.addConstraint(Sketcher.Constraint("DistanceY", 0, 3, -1, 1, Q("10 mm")))
sketch11.addConstraint(Sketcher.Constraint("DistanceX", -1, 1, 0, 3, Q("45.5 mm")))
sketch11.setExpression("Constraints[2]", "Params.sketch11_diameter")
pocket7 = doc.addObject("PartDesign::Pocket", "Pocket006")
body.addObject(pocket7)
pocket7.Profile = sketch11
pocket7.Type = "ThroughAll"
pocket7.Reversed = True
doc.recompute()

mirrored = doc.addObject("PartDesign::Mirrored", "Mirrored")
body.addObject(mirrored)
mirrored.Originals = [pad4, pocket7]
mirrored.MirrorPlane = (doc.YZ_Plane, [""])
body.Tip = mirrored
doc.recompute()

fillet2 = doc.addObject("PartDesign::Fillet", "Fillet001")
body.addObject(fillet2)
fillet2.Base = (mirrored, edges_at(mirrored, [(-53, -2, 22.5), (-53, -2, -22.5)]))
fillet2.setExpression("Radius", "Params.fillet2_radius")

sketch12 = doc.addObject("Sketcher::SketchObject", "Sketch011")
body.addObject(sketch12)
sketch12.AttachmentSupport = (doc.XY_Plane, [""])
sketch12.MapMode = "FlatFace"
sketch12.AttachmentOffset = App.Placement(Vector(0, 0, -12.9), App.Rotation())
sketch12.addGeometry(Part.Circle(Vector(-15.5, 36.6, 0), Vector(0, 0, 1), 3.7), False)
sketch12.addGeometry(Part.Circle(Vector(-15.5, 36.6, 0), Vector(0, 0, 1), 1.7), False)
sketch12.addGeometry(Part.Circle(Vector(15.5, 36.6, 0), Vector(0, 0, 1), 3.7), False)
sketch12.addGeometry(Part.Circle(Vector(15.5, 36.6, 0), Vector(0, 0, 1), 1.7), False)
sketch12.addGeometry(Part.Circle(Vector(15.5, 5.7, 0), Vector(0, 0, 1), 3.7), False)
sketch12.addGeometry(Part.Circle(Vector(15.5, 5.7, 0), Vector(0, 0, 1), 1.7), False)
sketch12.addGeometry(Part.Circle(Vector(-15.5, 5.7, 0), Vector(0, 0, 1), 3.7), False)
sketch12.addGeometry(Part.Circle(Vector(-15.5, 5.7, 0), Vector(0, 0, 1), 1.7), False)
sketch12.addConstraint(Sketcher.Constraint("Coincident", 1, 3, 0, 3))
sketch12.addConstraint(Sketcher.Constraint("Coincident", 3, 3, 2, 3))
sketch12.addConstraint(Sketcher.Constraint("Coincident", 5, 3, 4, 3))
sketch12.addConstraint(Sketcher.Constraint("Coincident", 7, 3, 6, 3))
sketch12.addConstraint(Sketcher.Constraint("Equal", 0, 2))
sketch12.addConstraint(Sketcher.Constraint("Equal", 1, 3))
sketch12.addConstraint(Sketcher.Constraint("Equal", 2, 4))
sketch12.addConstraint(Sketcher.Constraint("Equal", 3, 5))
sketch12.addConstraint(Sketcher.Constraint("Equal", 4, 6))
sketch12.addConstraint(Sketcher.Constraint("Equal", 5, 7))
sketch12.addConstraint(Sketcher.Constraint("Symmetric", 0, 3, 2, 3, -2))
sketch12.addConstraint(Sketcher.Constraint("Symmetric", 4, 3, 6, 3, -2))
sketch12.addConstraint(Sketcher.Constraint("Vertical", 3, 3, 4, 3))
sketch12.addConstraint(Sketcher.Constraint("Diameter", 0, Q("7.4 mm")))
sketch12.addConstraint(Sketcher.Constraint("Diameter", 1, Q("3.4 mm")))
sketch12.addConstraint(Sketcher.Constraint("DistanceX", 0, 3, 2, 3, Q("31 mm")))
sketch12.addConstraint(Sketcher.Constraint("DistanceY", 4, 3, 2, 3, Q("31 mm")))
sketch12.addConstraint(Sketcher.Constraint("DistanceY", -1, 1, 0, 3, Q("36.65 mm")))
sketch12.setExpression("Constraints[13]", "Params.sketch12_diameter")
sketch12.setExpression("Constraints[14]", "Params.sketch12_diameter2")
pad5 = doc.addObject("PartDesign::Pad", "Pad004")
body.addObject(pad5)
pad5.Profile = sketch12
pad5.setExpression("Length", "Params.pad5_length")

sketch13 = doc.addObject("Sketcher::SketchObject", "Sketch012")
body.addObject(sketch13)
sketch13.AttachmentSupport = (doc.XY_Plane, [""])
sketch13.MapMode = "FlatFace"
sketch13.AttachmentOffset = App.Placement(Vector(0, 0, -22.5), App.Rotation())
sketch13.addGeometry(Part.Circle(Vector(-15.5, 5.7, 0), Vector(0, 0, 1), 1.7), False)
sketch13.addGeometry(Part.Circle(Vector(15.5, 5.7, 0), Vector(0, 0, 1), 1.7), False)
sketch13.addGeometry(Part.Circle(Vector(15.5, 36.6, 0), Vector(0, 0, 1), 1.7), False)
sketch13.addGeometry(Part.Circle(Vector(-15.5, 36.6, 0), Vector(0, 0, 1), 1.7), False)
sketch13.addConstraint(Sketcher.Constraint("Equal", 0, 1))
sketch13.addConstraint(Sketcher.Constraint("Equal", 1, 2))
sketch13.addConstraint(Sketcher.Constraint("Equal", 2, 3))
sketch13.addConstraint(Sketcher.Constraint("Symmetric", 0, 3, 1, 3, -2))
sketch13.addConstraint(Sketcher.Constraint("Symmetric", 2, 3, 3, 3, -2))
sketch13.addConstraint(Sketcher.Constraint("Vertical", 1, 3, 2, 3))
sketch13.addConstraint(Sketcher.Constraint("Diameter", 0, Q("3.4 mm")))
sketch13.addConstraint(Sketcher.Constraint("DistanceX", 0, 3, 1, 3, Q("31 mm")))
sketch13.addConstraint(Sketcher.Constraint("DistanceY", 1, 3, 2, 3, Q("31 mm")))
sketch13.addConstraint(Sketcher.Constraint("DistanceY", -1, 1, 0, 3, Q("5.65 mm")))
sketch13.setExpression("Constraints[6]", "Params.sketch13_diameter")
pocket8 = doc.addObject("PartDesign::Pocket", "Pocket007")
body.addObject(pocket8)
pocket8.Profile = sketch13
pocket8.setExpression("Length", "Params.pocket8_length")
pocket8.Reversed = True

sketch14 = doc.addObject("Sketcher::SketchObject", "Sketch013")
body.addObject(sketch14)
sketch14.AttachmentSupport = (doc.XY_Plane, [""])
sketch14.MapMode = "FlatFace"
sketch14.AttachmentOffset = App.Placement(Vector(0, 0, -22.5), App.Rotation())
sketch14.addGeometry(Part.Circle(Vector(0, 21, 0), Vector(0, 0, 1), 5), False)
sketch14.addConstraint(Sketcher.Constraint("PointOnObject", 0, 3, -2))
sketch14.addConstraint(Sketcher.Constraint("Diameter", 0, Q("10 mm")))
sketch14.addConstraint(Sketcher.Constraint("DistanceY", -1, 1, 0, 3, Q("21.15 mm")))
sketch14.setExpression("Constraints[1]", "Params.sketch14_diameter")
pocket9 = doc.addObject("PartDesign::Pocket", "Pocket008")
body.addObject(pocket9)
pocket9.Profile = sketch14
pocket9.setExpression("Length", "Params.pocket9_length")
pocket9.Reversed = True

doc.recompute()
